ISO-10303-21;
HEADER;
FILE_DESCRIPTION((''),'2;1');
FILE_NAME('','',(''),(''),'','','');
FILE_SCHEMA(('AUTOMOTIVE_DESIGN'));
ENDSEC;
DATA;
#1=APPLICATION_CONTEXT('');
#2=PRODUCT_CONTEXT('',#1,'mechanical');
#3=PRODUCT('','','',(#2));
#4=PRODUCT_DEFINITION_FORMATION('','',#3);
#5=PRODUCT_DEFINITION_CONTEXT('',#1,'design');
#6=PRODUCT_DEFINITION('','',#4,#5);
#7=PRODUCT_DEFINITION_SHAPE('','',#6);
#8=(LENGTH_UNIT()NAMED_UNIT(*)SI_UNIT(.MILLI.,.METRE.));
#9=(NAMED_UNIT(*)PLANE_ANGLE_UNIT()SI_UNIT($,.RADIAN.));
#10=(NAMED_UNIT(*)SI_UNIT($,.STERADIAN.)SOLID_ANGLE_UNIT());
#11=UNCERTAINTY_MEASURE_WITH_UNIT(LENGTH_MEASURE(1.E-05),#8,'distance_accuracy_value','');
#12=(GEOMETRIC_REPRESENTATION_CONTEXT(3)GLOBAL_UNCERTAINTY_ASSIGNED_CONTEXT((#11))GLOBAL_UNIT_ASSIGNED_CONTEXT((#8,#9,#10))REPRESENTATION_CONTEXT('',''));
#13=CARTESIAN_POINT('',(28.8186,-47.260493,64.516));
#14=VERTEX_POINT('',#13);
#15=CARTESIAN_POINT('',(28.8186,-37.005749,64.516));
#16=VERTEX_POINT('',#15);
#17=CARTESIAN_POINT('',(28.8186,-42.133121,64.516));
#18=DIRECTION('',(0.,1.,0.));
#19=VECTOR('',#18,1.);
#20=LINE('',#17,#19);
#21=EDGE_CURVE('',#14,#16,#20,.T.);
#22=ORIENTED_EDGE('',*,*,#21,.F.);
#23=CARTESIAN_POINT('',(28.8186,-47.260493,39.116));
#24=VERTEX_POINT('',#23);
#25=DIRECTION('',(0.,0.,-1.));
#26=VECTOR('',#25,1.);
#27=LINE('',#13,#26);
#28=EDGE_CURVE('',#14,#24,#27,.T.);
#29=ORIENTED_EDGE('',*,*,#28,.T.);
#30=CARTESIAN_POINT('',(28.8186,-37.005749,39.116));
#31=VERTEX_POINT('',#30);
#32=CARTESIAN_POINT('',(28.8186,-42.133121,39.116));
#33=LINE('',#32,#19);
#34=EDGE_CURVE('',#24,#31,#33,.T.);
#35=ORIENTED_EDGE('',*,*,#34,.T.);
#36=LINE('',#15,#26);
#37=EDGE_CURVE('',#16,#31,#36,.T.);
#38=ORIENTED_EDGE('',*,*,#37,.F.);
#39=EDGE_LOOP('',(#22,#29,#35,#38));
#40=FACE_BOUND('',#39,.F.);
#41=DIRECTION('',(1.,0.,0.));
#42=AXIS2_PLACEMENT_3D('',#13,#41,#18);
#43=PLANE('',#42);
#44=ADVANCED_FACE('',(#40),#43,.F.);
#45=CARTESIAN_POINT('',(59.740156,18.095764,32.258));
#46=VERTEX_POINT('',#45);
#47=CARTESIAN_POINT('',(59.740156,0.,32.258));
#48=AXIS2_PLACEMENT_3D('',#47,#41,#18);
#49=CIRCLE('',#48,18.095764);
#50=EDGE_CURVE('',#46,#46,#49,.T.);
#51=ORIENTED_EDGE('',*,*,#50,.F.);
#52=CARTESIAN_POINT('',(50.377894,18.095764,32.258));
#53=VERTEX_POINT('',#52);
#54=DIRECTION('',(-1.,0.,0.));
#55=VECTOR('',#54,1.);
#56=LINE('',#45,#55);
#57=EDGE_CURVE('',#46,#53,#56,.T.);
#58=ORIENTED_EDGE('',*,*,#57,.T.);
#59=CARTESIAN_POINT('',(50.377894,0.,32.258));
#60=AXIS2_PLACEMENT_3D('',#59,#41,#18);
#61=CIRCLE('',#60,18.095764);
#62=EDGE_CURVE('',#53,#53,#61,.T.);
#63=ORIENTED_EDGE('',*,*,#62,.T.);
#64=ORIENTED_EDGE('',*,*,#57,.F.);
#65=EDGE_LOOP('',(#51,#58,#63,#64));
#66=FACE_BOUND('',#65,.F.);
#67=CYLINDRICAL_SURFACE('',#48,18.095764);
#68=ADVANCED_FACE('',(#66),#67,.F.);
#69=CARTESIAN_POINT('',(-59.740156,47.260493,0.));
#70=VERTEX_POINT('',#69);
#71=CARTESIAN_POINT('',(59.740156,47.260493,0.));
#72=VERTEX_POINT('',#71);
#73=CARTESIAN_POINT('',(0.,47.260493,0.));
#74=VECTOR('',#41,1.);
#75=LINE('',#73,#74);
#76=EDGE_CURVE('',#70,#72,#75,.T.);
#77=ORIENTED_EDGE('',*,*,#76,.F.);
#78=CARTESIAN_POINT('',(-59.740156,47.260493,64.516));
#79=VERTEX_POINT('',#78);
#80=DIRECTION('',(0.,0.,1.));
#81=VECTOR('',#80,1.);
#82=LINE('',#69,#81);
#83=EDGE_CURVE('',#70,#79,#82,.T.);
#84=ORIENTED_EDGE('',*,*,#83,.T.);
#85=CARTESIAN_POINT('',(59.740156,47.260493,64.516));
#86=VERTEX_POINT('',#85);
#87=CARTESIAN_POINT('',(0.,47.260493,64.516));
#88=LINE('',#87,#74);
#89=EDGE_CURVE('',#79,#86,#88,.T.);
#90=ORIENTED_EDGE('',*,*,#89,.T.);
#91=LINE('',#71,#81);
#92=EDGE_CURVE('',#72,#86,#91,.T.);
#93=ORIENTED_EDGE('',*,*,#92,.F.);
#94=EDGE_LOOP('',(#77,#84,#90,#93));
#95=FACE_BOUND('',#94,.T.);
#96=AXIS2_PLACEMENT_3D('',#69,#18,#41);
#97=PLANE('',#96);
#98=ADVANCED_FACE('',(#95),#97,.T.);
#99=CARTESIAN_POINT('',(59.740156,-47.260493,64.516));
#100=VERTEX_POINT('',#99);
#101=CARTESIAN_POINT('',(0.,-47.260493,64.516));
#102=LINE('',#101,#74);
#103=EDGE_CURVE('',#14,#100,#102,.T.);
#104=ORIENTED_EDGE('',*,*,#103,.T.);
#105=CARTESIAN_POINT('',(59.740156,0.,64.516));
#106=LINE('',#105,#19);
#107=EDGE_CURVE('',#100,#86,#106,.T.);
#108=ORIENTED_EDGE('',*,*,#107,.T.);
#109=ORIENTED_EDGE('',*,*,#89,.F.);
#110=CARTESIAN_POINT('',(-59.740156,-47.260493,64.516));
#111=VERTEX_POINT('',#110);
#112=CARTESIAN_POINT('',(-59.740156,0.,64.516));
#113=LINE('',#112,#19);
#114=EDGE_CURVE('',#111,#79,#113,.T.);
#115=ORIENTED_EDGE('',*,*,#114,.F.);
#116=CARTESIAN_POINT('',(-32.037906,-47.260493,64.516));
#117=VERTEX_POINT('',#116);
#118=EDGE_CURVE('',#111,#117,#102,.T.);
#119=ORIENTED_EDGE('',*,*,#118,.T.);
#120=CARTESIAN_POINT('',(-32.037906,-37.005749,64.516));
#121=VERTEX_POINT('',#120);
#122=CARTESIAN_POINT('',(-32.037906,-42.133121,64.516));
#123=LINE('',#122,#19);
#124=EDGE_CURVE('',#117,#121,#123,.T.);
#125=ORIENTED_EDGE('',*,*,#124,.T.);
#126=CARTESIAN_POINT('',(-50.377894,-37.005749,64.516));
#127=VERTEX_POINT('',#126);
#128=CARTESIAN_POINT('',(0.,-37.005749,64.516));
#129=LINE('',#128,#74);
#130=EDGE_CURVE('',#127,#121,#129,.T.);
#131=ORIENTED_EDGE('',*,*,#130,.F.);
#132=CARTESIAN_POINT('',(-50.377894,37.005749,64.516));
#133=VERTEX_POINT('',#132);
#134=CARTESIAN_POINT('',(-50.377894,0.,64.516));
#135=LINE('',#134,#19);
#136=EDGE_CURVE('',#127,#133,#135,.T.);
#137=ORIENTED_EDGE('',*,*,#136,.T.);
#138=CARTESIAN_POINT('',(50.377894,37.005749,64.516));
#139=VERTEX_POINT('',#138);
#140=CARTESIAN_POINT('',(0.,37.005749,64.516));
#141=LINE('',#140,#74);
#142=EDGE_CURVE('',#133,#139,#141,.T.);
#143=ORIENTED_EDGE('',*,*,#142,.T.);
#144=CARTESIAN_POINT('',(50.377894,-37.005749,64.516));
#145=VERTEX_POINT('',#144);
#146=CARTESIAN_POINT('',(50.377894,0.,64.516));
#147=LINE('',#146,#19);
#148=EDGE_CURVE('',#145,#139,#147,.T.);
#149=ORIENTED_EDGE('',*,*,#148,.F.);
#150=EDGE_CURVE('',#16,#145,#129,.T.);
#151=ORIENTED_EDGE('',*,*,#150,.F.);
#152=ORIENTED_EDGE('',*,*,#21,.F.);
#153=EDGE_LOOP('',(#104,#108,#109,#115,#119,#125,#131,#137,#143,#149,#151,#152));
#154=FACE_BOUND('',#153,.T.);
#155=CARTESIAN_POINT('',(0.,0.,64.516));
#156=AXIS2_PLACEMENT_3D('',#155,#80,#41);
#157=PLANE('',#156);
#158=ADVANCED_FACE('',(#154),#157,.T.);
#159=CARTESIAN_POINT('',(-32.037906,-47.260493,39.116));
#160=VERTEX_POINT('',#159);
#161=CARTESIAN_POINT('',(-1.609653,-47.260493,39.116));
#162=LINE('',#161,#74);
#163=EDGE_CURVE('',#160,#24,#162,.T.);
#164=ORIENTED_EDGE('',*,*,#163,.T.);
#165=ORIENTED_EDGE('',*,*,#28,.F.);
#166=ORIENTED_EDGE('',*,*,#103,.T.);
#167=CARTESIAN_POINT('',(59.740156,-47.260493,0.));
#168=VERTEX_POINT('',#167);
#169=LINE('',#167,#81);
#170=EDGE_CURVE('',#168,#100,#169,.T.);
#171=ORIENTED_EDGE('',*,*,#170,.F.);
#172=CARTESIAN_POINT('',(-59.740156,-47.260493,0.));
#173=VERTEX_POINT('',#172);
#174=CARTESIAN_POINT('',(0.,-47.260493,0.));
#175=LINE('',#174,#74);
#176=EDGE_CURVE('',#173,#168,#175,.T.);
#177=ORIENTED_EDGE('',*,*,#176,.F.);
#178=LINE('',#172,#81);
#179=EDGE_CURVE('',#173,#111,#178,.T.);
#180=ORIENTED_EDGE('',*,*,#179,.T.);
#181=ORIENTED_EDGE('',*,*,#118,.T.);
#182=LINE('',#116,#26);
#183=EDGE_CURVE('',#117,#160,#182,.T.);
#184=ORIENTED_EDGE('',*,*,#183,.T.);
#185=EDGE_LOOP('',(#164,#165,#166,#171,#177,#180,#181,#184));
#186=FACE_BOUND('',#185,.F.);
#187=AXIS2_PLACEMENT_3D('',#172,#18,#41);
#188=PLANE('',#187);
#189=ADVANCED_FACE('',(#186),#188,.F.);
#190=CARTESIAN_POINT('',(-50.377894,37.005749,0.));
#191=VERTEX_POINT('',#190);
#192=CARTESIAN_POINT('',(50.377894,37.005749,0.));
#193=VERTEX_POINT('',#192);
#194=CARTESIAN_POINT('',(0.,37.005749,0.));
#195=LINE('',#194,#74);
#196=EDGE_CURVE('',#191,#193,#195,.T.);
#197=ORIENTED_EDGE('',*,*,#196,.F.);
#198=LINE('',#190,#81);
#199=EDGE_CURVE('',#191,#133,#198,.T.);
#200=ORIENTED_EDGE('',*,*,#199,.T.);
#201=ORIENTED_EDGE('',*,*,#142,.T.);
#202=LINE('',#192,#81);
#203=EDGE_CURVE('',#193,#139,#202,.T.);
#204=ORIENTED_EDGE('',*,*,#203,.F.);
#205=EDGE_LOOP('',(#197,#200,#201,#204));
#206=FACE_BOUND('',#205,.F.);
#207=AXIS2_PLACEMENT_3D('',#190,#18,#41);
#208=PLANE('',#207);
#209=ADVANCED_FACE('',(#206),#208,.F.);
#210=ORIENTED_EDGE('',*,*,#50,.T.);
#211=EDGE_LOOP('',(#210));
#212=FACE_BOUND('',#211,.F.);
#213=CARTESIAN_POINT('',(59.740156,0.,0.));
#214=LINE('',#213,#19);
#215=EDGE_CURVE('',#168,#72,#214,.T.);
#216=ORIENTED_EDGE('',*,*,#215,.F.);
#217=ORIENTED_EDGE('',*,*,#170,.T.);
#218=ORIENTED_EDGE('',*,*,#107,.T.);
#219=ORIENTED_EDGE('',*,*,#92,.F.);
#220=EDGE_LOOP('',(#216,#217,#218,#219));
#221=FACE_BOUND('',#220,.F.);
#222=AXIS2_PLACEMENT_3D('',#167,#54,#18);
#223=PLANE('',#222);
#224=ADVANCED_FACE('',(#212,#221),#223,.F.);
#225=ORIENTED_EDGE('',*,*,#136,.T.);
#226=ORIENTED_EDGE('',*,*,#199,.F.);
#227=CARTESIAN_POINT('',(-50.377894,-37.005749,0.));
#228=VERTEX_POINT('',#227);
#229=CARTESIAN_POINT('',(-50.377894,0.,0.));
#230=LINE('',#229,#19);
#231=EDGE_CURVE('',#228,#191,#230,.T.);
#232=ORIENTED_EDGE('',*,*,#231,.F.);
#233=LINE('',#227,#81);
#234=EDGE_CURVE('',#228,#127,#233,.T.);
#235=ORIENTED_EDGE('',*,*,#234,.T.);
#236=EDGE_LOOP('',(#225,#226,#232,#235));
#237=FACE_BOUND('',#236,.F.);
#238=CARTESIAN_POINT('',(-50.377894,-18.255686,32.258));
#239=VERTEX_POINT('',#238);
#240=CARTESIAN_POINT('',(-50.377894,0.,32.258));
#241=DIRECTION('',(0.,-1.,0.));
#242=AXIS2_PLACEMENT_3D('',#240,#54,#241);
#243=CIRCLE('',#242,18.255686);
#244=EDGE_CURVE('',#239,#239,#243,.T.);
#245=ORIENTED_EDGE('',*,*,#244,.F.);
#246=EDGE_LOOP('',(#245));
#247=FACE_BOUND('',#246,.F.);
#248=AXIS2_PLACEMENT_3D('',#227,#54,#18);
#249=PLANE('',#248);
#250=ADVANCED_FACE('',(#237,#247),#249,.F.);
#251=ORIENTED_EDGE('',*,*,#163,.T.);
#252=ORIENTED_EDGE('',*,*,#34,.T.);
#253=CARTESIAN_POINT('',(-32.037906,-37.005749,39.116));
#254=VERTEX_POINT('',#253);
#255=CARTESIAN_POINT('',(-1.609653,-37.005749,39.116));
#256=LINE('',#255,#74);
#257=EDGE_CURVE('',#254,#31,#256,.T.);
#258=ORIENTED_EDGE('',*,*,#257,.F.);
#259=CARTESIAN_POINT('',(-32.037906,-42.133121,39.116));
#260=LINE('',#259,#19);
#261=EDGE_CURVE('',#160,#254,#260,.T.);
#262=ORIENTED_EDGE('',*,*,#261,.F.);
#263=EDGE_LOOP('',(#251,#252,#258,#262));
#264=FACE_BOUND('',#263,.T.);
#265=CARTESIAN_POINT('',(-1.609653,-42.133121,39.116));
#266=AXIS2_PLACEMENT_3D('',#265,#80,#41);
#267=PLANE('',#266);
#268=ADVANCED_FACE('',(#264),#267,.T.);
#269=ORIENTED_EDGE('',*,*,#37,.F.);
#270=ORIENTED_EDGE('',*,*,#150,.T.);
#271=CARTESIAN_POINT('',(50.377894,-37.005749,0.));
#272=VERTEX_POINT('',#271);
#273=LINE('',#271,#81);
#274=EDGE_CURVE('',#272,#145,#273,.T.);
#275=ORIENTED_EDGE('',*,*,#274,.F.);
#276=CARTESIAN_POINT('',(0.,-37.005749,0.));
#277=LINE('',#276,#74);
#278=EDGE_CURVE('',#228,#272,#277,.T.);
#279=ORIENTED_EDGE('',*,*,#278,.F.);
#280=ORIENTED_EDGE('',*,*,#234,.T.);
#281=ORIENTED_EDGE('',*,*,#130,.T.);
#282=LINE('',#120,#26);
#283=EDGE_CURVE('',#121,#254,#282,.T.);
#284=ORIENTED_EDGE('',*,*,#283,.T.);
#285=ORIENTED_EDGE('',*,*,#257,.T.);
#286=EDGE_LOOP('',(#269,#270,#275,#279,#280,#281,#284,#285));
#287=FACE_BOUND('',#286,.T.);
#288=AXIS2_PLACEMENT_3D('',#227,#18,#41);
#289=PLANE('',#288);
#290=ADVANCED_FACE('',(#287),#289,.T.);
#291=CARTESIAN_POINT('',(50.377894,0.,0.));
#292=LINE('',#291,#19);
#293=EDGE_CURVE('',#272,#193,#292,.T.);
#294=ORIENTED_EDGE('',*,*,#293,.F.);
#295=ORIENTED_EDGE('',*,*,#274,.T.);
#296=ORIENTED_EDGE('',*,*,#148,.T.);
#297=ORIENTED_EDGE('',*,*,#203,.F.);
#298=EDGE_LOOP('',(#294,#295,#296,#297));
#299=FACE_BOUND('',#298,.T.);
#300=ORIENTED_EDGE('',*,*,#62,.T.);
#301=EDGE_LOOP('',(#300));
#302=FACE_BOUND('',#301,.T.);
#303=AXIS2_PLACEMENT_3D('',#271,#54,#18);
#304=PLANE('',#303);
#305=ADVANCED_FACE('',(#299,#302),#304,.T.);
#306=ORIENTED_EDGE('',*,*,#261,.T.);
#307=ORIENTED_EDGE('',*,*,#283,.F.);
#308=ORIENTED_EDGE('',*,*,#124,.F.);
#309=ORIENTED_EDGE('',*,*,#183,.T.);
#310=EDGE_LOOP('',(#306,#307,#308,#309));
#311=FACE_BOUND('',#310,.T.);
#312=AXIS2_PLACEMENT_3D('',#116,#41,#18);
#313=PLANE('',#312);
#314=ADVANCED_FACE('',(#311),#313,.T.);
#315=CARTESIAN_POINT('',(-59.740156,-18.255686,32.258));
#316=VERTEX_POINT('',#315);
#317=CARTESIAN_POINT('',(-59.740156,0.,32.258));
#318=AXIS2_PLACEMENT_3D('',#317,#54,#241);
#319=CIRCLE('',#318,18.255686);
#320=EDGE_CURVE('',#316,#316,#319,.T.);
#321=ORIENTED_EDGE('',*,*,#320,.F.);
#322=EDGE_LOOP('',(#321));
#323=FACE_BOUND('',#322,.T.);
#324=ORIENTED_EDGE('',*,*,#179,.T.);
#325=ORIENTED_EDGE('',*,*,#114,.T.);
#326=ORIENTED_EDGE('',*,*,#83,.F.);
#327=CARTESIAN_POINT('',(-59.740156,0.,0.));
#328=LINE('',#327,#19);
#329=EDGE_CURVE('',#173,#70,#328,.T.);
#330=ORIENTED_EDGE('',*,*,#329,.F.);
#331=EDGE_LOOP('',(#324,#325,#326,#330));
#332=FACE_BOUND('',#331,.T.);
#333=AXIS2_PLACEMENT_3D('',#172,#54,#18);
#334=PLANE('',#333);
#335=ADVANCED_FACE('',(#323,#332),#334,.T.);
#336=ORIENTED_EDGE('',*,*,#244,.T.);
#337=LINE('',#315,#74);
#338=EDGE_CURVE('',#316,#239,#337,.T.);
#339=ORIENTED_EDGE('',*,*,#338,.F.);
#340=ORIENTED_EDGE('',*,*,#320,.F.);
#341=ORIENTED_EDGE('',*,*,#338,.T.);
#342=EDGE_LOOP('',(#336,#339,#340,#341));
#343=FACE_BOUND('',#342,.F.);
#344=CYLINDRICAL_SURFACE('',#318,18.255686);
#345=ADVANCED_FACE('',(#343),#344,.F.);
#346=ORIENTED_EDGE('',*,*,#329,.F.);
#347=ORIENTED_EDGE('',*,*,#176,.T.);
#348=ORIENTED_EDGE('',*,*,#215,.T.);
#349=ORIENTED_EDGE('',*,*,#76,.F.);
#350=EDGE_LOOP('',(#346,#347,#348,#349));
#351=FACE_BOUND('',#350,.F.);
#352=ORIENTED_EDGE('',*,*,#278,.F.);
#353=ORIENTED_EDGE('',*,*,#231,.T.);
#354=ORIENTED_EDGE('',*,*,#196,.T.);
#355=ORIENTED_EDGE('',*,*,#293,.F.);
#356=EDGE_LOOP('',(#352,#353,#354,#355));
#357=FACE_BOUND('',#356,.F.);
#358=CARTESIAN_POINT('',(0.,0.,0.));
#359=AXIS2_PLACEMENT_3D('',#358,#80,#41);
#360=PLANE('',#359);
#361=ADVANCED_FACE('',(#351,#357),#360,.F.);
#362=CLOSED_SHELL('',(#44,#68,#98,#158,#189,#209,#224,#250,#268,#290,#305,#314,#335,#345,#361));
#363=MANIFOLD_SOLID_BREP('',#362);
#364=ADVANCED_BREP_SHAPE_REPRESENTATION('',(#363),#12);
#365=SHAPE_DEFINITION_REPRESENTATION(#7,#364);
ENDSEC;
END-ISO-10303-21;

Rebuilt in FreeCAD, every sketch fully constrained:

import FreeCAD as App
import Part
import Sketcher

V = App.Vector
Q = App.Units.Quantity


def add_polygon(sketch, points):
    """Adds a closed chain of lines whose ends are joined by coincident constraints."""
    first, n = sketch.GeometryCount, len(points)
    for a, b in zip(points, points[1:] + points[:1]):
        sketch.addGeometry(Part.LineSegment(App.Vector(*a, 0), App.Vector(*b, 0)), False)
    for i in range(n):
        sketch.addConstraint(Sketcher.Constraint("Coincident", first + i, 2, first + (i + 1) % n, 1))

doc = App.newDocument("Part")
body = doc.addObject("PartDesign::Body", "Body")

sketch1 = body.newObject("Sketcher::SketchObject", "Sketch")
sketch1.AttachmentSupport = (doc.getObject("XY_Plane"), [""])
sketch1.MapMode = "FlatFace"
add_polygon(sketch1, [(-60, 47), (-60, -47), (60, -47), (60, 47)])
add_polygon(sketch1, [(50, -37), (-50, -37), (-50, 37), (50, 37)])
sketch1.addConstraint([
    Sketcher.Constraint("Vertical", 0),
    Sketcher.Constraint("Horizontal", 1),
    Sketcher.Constraint("Vertical", 2),
    Sketcher.Constraint("Horizontal", 3),
    Sketcher.Constraint("Horizontal", 4),
    Sketcher.Constraint("Vertical", 5),
    Sketcher.Constraint("Horizontal", 6),
    Sketcher.Constraint("Vertical", 7),
    Sketcher.Constraint("Symmetric", 0, 2, 2, 2, -1, 1),
    Sketcher.Constraint("Symmetric", 4, 2, 6, 2, -1, 1),
    Sketcher.Constraint("DistanceY", 5, 1, 5, 2, 74.011498),
    Sketcher.Constraint("DistanceX", 1, 1, 1, 2, 119.480312),
    Sketcher.Constraint("DistanceX", 4, 2, 4, 1, 100.755788),
    Sketcher.Constraint("DistanceY", 0, 2, 0, 1, 94.520986),
])
pad1 = body.newObject("PartDesign::Pad", "Pad")
pad1.Profile = sketch1
pad1.Length = Q("2.54 in")

sketch2 = body.newObject("Sketcher::SketchObject", "Sketch001")
sketch2.AttachmentSupport = (doc.getObject("XY_Plane"), [""])
sketch2.MapMode = "FlatFace"
sketch2.AttachmentOffset = App.Placement(V(0, 0, 2.54 * 25.4), App.Rotation())
add_polygon(sketch2, [(-32, -37), (-32, -47), (29, -47), (29, -37)])
sketch2.addConstraint([
    Sketcher.Constraint("Vertical", 0),
    Sketcher.Constraint("Horizontal", 1),
    Sketcher.Constraint("Vertical", 2),
    Sketcher.Constraint("Horizontal", 3),
    Sketcher.Constraint("DistanceX", -1, 1, 1, 2, 28.8186),
    Sketcher.Constraint("DistanceX", 1, 1, 1, 2, 60.856506),
    Sketcher.Constraint("DistanceY", 0, 2, 0, 1, 10.254744),
    Sketcher.Constraint("DistanceY", 2, 2, -1, 1, 37.005749),
])
pocket1 = body.newObject("PartDesign::Pocket", "Pocket")
pocket1.Profile = sketch2
pocket1.Length = Q("1 in")

sketch3 = body.newObject("Sketcher::SketchObject", "Sketch002")
sketch3.AttachmentSupport = (doc.getObject("YZ_Plane"), [""])
sketch3.MapMode = "FlatFace"
sketch3.AttachmentOffset = App.Placement(V(0, 0, 59.740156), App.Rotation())
sketch3.addGeometry(Part.Circle(V(0, 32, 0), V(0, 0, 1), 18), False)
sketch3.addConstraint([
    Sketcher.Constraint("PointOnObject", 0, 3, -2),
    Sketcher.Constraint("DistanceY", -1, 1, 0, 3, Q("1.27 in")),
    Sketcher.Constraint("Diameter", 0, 36.191528),
])
pocket2 = body.newObject("PartDesign::Pocket", "Pocket001")
pocket2.Profile = sketch3
pocket2.Length = Q("1 in")

sketch4 = body.newObject("Sketcher::SketchObject", "Sketch003")
sketch4.AttachmentSupport = (doc.getObject("YZ_Plane"), [""])
sketch4.MapMode = "FlatFace"
sketch4.AttachmentOffset = App.Placement(V(0, 0, -59.740156), App.Rotation())
sketch4.addGeometry(Part.Circle(V(0, 32, 0), V(0, 0, 1), 18), False)
sketch4.addConstraint([
    Sketcher.Constraint("PointOnObject", 0, 3, -2),
    Sketcher.Constraint("DistanceY", -1, 1, 0, 3, Q("1.27 in")),
    Sketcher.Constraint("Diameter", 0, 36.511372),
])
pocket3 = body.newObject("PartDesign::Pocket", "Pocket002")
pocket3.Profile = sketch4
pocket3.Length = Q("1 in")
pocket3.Reversed = True

doc.recompute()
